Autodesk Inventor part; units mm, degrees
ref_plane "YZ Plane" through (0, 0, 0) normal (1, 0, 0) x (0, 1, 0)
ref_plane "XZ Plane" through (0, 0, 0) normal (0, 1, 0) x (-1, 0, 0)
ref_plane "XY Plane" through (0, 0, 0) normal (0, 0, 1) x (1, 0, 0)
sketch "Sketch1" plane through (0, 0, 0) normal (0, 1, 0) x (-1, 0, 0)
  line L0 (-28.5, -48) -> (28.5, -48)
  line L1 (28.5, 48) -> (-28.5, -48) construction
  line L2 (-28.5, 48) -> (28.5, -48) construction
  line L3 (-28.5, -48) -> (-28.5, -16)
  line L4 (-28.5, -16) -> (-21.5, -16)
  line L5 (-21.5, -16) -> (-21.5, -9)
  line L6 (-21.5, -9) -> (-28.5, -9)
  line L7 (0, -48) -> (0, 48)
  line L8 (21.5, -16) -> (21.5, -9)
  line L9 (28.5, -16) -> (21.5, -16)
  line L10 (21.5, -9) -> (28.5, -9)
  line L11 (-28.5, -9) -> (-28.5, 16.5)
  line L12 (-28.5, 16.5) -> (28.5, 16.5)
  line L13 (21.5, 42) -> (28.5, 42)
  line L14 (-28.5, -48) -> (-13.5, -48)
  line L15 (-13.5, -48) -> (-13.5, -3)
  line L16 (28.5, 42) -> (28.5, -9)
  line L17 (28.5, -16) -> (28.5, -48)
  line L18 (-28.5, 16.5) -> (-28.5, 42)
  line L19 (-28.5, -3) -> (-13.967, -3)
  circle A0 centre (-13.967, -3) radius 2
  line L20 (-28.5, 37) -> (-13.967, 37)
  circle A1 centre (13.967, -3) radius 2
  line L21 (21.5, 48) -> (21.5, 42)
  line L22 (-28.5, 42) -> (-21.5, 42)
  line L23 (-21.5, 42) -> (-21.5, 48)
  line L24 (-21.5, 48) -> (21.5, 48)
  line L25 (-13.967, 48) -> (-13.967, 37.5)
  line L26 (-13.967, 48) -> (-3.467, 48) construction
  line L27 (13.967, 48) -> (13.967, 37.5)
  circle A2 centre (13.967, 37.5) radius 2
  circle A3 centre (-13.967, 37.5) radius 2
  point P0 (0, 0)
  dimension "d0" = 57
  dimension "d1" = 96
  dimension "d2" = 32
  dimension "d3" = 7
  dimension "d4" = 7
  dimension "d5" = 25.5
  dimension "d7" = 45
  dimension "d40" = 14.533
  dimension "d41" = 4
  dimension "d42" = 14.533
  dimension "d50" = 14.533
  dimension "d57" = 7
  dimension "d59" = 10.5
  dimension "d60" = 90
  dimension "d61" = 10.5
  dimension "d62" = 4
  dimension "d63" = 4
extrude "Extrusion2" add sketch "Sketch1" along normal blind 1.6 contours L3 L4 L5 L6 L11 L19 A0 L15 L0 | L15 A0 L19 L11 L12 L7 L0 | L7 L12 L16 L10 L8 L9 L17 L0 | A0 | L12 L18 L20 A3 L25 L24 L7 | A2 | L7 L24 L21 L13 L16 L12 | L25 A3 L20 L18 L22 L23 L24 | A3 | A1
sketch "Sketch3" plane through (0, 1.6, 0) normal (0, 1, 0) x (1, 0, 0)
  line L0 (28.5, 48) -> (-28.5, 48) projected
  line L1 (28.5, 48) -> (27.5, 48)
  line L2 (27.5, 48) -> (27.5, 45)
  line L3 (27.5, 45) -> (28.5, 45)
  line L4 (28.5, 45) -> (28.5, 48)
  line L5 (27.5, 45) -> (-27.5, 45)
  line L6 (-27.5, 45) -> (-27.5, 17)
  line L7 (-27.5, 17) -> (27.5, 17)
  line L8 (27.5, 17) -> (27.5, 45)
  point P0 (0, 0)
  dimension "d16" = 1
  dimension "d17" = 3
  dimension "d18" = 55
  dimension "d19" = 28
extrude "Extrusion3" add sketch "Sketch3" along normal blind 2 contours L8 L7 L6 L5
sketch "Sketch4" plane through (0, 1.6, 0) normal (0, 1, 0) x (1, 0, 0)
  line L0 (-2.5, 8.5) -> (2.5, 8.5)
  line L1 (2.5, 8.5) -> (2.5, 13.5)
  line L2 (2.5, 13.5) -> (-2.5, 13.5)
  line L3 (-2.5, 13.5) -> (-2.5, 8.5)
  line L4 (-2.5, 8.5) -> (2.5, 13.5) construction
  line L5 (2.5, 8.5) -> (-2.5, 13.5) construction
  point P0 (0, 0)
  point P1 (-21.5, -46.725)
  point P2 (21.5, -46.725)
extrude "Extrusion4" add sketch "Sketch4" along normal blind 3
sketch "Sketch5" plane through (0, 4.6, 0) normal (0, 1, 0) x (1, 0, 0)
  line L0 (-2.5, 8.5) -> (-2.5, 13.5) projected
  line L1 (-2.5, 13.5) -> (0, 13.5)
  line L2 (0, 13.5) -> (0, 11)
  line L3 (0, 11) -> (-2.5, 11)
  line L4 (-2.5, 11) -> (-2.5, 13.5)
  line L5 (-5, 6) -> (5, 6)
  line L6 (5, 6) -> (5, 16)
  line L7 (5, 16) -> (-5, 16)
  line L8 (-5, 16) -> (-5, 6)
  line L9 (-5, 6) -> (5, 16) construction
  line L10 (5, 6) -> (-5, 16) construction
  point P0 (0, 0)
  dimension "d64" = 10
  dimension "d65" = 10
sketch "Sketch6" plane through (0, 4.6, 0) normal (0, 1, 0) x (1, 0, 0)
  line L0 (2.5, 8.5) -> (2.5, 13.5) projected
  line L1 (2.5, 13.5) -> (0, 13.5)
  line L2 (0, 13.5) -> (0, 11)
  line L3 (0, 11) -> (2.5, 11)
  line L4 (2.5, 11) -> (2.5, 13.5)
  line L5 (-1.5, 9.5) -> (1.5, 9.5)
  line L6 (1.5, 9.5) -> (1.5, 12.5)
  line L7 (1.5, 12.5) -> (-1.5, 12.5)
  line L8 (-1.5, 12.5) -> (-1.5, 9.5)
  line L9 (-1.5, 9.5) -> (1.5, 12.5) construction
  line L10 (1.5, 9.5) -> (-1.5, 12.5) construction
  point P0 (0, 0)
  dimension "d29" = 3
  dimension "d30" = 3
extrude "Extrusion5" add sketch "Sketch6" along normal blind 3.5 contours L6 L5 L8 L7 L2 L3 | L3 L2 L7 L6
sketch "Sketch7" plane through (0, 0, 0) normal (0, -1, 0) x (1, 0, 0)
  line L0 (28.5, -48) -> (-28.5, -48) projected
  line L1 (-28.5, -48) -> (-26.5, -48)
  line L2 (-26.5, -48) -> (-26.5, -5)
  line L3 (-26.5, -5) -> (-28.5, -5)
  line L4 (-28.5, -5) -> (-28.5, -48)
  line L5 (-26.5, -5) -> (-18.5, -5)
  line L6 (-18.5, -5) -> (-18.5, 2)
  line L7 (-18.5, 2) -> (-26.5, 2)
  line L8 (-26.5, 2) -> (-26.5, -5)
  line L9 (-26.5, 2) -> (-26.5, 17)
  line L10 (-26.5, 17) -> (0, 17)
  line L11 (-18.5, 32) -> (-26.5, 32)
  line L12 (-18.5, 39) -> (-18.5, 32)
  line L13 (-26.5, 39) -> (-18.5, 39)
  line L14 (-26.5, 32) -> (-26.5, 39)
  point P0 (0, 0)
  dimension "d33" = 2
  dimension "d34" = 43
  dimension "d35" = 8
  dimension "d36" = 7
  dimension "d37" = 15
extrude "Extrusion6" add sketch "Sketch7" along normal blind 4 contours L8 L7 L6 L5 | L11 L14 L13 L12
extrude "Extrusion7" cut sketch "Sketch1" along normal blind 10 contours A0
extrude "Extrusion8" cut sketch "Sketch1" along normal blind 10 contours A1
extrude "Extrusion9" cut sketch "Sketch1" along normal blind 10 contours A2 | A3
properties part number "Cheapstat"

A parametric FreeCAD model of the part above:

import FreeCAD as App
import Part
import Sketcher

V = App.Vector
Q = App.Units.Quantity


def add_polygon(sketch, points):
    """Adds a closed chain of lines whose ends are joined by coincident constraints."""
    first, n = sketch.GeometryCount, len(points)
    for a, b in zip(points, points[1:] + points[:1]):
        sketch.addGeometry(Part.LineSegment(App.Vector(*a, 0), App.Vector(*b, 0)), False)
    for i in range(n):
        sketch.addConstraint(Sketcher.Constraint("Coincident", first + i, 2, first + (i + 1) % n, 1))

doc = App.newDocument("Part")
body = doc.addObject("PartDesign::Body", "Body")

# Sketch on XZ plane
sketch1 = doc.addObject("Sketcher::SketchObject", "Sketch")
body.addObject(sketch1)
sketch1.AttachmentSupport = (doc.XZ_Plane, [""])
sketch1.MapMode = "FlatFace"
add_polygon(sketch1, [(28.5, -16), (28.5, -48), (-28.5, -48), (-28.5, -16), (-21.5, -16), (-21.5, -9), (-28.5, -9), (-28.5, 42), (-21.5, 42), (-21.5, 48), (-13.967, 48), (21.5, 48), (21.5, 42), (28.5, 42), (28.5, -9), (21.5, -9), (21.5, -16)])  # lines 0-16
sketch1.addConstraint([
    Sketcher.Constraint("Vertical", 0),
    Sketcher.Constraint("Horizontal", 1),
    Sketcher.Constraint("Vertical", 2),
    Sketcher.Constraint("Horizontal", 3),
    Sketcher.Constraint("Vertical", 4),
    Sketcher.Constraint("Horizontal", 5),
    Sketcher.Constraint("Vertical", 6),
    Sketcher.Constraint("Horizontal", 7),
    Sketcher.Constraint("Vertical", 8),
    Sketcher.Constraint("Horizontal", 9),
    Sketcher.Constraint("Horizontal", 10),
    Sketcher.Constraint("Vertical", 11),
    Sketcher.Constraint("Horizontal", 12),
    Sketcher.Constraint("Vertical", 13),
    Sketcher.Constraint("Horizontal", 14),
    Sketcher.Constraint("Vertical", 15),
    Sketcher.Constraint("Horizontal", 16),
    Sketcher.Constraint("Symmetric", 7, 2, 11, 2, -2),
    Sketcher.Constraint("Symmetric", 5, 2, 13, 2, -2),
    Sketcher.Constraint("Symmetric", 3, 2, 15, 2, -2),
    Sketcher.Constraint("Vertical", 2, 2, 5, 2),
    Sketcher.Constraint("Vertical", 4, 2, 7, 2),
    Sketcher.Constraint("Vertical", 0, 2, 12, 2),
    Sketcher.Constraint("Equal", 16, 4),
    Sketcher.Constraint("DistanceX", 1, 2, 1, 1, Q("57 mm")),
    Sketcher.Constraint("DistanceX", 3, 1, 3, 2, Q("7 mm")),
    Sketcher.Constraint("DistanceY", 0, 2, 0, 1, Q("32 mm")),
    Sketcher.Constraint("DistanceY", 1, 2, 6, 2, Q("90 mm")),
    Sketcher.Constraint("DistanceY", 4, 2, 8, 2, Q("57 mm")),
    Sketcher.Constraint("DistanceY", 0, 2, -1, 1, Q("48 mm")),
    Sketcher.Constraint("DistanceX", 6, 2, 9, 2, Q("14.533 mm")),
])
pad1 = doc.addObject("PartDesign::Pad", "Pad")
body.addObject(pad1)
pad1.Profile = sketch1
pad1.Length = 1.6
pad1.Reversed = True

# Sketch on XZ plane
sketch2 = doc.addObject("Sketcher::SketchObject", "Sketch001")
body.addObject(sketch2)
sketch2.AttachmentSupport = (doc.XZ_Plane, [""])
sketch2.MapMode = "FlatFace"
sketch2.AttachmentOffset = App.Placement(V(0, 0, -1.6), App.Rotation())
add_polygon(sketch2, [(27.5, -17), (27.5, -45), (-27.5, -45), (-27.5, -17)])  # lines 0-3
sketch2.addConstraint([
    Sketcher.Constraint("Vertical", 0),
    Sketcher.Constraint("Horizontal", 1),
    Sketcher.Constraint("Vertical", 2),
    Sketcher.Constraint("Horizontal", 3),
    Sketcher.Constraint("DistanceX", 1, 2, 1, 1, Q("55 mm")),
    Sketcher.Constraint("DistanceY", 0, 2, 0, 1, Q("28 mm")),
    Sketcher.Constraint("DistanceY", 0, 2, -1, 1, Q("45 mm")),
    Sketcher.Constraint("DistanceX", -1, 1, 0, 2, Q("27.5 mm")),
])
pad2 = doc.addObject("PartDesign::Pad", "Pad001")
body.addObject(pad2)
pad2.Profile = sketch2
pad2.Length = 2
pad2.Reversed = True

# Sketch on XZ plane
sketch3 = doc.addObject("Sketcher::SketchObject", "Sketch002")
body.addObject(sketch3)
sketch3.AttachmentSupport = (doc.XZ_Plane, [""])
sketch3.MapMode = "FlatFace"
sketch3.AttachmentOffset = App.Placement(V(0, 0, -1.6), App.Rotation())
add_polygon(sketch3, [(-2.5, -13.5), (-2.5, -8.5), (2.5, -8.5), (2.5, -13.5)])  # lines 0-3
sketch3.addConstraint([
    Sketcher.Constraint("Vertical", 0),
    Sketcher.Constraint("Horizontal", 1),
    Sketcher.Constraint("Vertical", 2),
    Sketcher.Constraint("Horizontal", 3),
    Sketcher.Constraint("Equal", 3, 0),
    Sketcher.Constraint("DistanceX", 1, 1, 1, 2, Q("5 mm")),
    Sketcher.Constraint("DistanceX", 0, 2, -1, 1, Q("2.5 mm")),
    Sketcher.Constraint("DistanceY", 0, 2, -1, 1, Q("8.5 mm")),
])
pad3 = doc.addObject("PartDesign::Pad", "Pad002")
body.addObject(pad3)
pad3.Profile = sketch3
pad3.Length = 3
pad3.Reversed = True

# Sketch on XZ plane
sketch4 = doc.addObject("Sketcher::SketchObject", "Sketch003")
body.addObject(sketch4)
sketch4.AttachmentSupport = (doc.XZ_Plane, [""])
sketch4.MapMode = "FlatFace"
sketch4.AttachmentOffset = App.Placement(V(0, 0, -4.6), App.Rotation())
add_polygon(sketch4, [(1.5, -9.5), (1.5, -12.5), (-1.5, -12.5), (-1.5, -9.5)])  # lines 0-3
sketch4.addConstraint([
    Sketcher.Constraint("Vertical", 0),
    Sketcher.Constraint("Horizontal", 1),
    Sketcher.Constraint("Vertical", 2),
    Sketcher.Constraint("Horizontal", 3),
    Sketcher.Constraint("Equal", 3, 0),
    Sketcher.Constraint("DistanceX", 1, 2, 1, 1, Q("3 mm")),
    Sketcher.Constraint("DistanceX", -1, 1, 0, 2, Q("1.5 mm")),
    Sketcher.Constraint("DistanceY", 0, 2, -1, 1, Q("12.5 mm")),
])
pad4 = doc.addObject("PartDesign::Pad", "Pad003")
body.addObject(pad4)
pad4.Profile = sketch4
pad4.Length = 3.5
pad4.Reversed = True

# Sketch on XZ plane
sketch5 = doc.addObject("Sketcher::SketchObject", "Sketch004")
body.addObject(sketch5)
sketch5.AttachmentSupport = (doc.XZ_Plane, [""])
sketch5.MapMode = "FlatFace"
add_polygon(sketch5, [(-26.5, 2), (-26.5, -5), (-18.5, -5), (-18.5, 2)])  # lines 0-3
add_polygon(sketch5, [(-26.5, 32), (-18.5, 32), (-18.5, 39), (-26.5, 39)])  # lines 4-7
sketch5.addConstraint([
    Sketcher.Constraint("Vertical", 0),
    Sketcher.Constraint("Horizontal", 1),
    Sketcher.Constraint("Vertical", 2),
    Sketcher.Constraint("Horizontal", 3),
    Sketcher.Constraint("Horizontal", 4),
    Sketcher.Constraint("Vertical", 5),
    Sketcher.Constraint("Horizontal", 6),
    Sketcher.Constraint("Vertical", 7),
    Sketcher.Constraint("Vertical", 2, 2, 4, 2),
    Sketcher.Constraint("Vertical", 3, 2, 6, 2),
    Sketcher.Constraint("Equal", 2, 5),
    Sketcher.Constraint("DistanceX", 1, 1, 1, 2, Q("8 mm")),
    Sketcher.Constraint("DistanceY", 0, 2, 0, 1, Q("7 mm")),
    Sketcher.Constraint("DistanceY", -1, 1, 2, 2, Q("2 mm")),
    Sketcher.Constraint("DistanceY", -1, 1, 4, 2, Q("32 mm")),
    Sketcher.Constraint("DistanceX", 0, 2, -1, 1, Q("26.5 mm")),
])
pad5 = doc.addObject("PartDesign::Pad", "Pad004")
body.addObject(pad5)
pad5.Profile = sketch5
pad5.Length = 4

# Sketch on XZ plane
sketch6 = doc.addObject("Sketcher::SketchObject", "Sketch005")
body.addObject(sketch6)
sketch6.AttachmentSupport = (doc.XZ_Plane, [""])
sketch6.MapMode = "FlatFace"
sketch6.addGeometry(Part.Circle(V(13.967, -3, 0), V(0, 0, 1), 2), False)
sketch6.addConstraint([
    Sketcher.Constraint("Diameter", 0, Q("4 mm")),
    Sketcher.Constraint("DistanceY", 0, 3, -1, 1, Q("3 mm")),
    Sketcher.Constraint("DistanceX", -1, 1, 0, 3, Q("13.967 mm")),
])
pocket1 = doc.addObject("PartDesign::Pocket", "Pocket")
body.addObject(pocket1)
pocket1.Profile = sketch6
pocket1.Length = 10

# Sketch on XZ plane
sketch7 = doc.addObject("Sketcher::SketchObject", "Sketch006")
body.addObject(sketch7)
sketch7.AttachmentSupport = (doc.XZ_Plane, [""])
sketch7.MapMode = "FlatFace"
sketch7.addGeometry(Part.Circle(V(-13.967, -3, 0), V(0, 0, 1), 2), False)
sketch7.addConstraint([
    Sketcher.Constraint("Diameter", 0, Q("4 mm")),
    Sketcher.Constraint("DistanceY", 0, 3, -1, 1, Q("3 mm")),
    Sketcher.Constraint("DistanceX", 0, 3, -1, 1, Q("13.967 mm")),
])
pocket2 = doc.addObject("PartDesign::Pocket", "Pocket001")
body.addObject(pocket2)
pocket2.Profile = sketch7
pocket2.Length = 10

# Sketch on XZ plane
sketch8 = doc.addObject("Sketcher::SketchObject", "Sketch007")
body.addObject(sketch8)
sketch8.AttachmentSupport = (doc.XZ_Plane, [""])
sketch8.MapMode = "FlatFace"
sketch8.addGeometry([
    Part.Circle(V(-13.967, 37.5, 0), V(0, 0, 1), 2),
    Part.Circle(V(13.967, 37.5, 0), V(0, 0, 1), 2),
], False)
sketch8.addConstraint([
    Sketcher.Constraint("Equal", 0, 1),
    Sketcher.Constraint("Symmetric", 0, 3, 1, 3, -2),
    Sketcher.Constraint("Diameter", 0, Q("4 mm")),
    Sketcher.Constraint("DistanceY", -1, 1, 0, 3, Q("37.5 mm")),
    Sketcher.Constraint("DistanceX", 0, 3, -1, 1, Q("13.967 mm")),
])
pocket3 = doc.addObject("PartDesign::Pocket", "Pocket002")
body.addObject(pocket3)
pocket3.Profile = sketch8
pocket3.Length = 10

doc.recompute()
